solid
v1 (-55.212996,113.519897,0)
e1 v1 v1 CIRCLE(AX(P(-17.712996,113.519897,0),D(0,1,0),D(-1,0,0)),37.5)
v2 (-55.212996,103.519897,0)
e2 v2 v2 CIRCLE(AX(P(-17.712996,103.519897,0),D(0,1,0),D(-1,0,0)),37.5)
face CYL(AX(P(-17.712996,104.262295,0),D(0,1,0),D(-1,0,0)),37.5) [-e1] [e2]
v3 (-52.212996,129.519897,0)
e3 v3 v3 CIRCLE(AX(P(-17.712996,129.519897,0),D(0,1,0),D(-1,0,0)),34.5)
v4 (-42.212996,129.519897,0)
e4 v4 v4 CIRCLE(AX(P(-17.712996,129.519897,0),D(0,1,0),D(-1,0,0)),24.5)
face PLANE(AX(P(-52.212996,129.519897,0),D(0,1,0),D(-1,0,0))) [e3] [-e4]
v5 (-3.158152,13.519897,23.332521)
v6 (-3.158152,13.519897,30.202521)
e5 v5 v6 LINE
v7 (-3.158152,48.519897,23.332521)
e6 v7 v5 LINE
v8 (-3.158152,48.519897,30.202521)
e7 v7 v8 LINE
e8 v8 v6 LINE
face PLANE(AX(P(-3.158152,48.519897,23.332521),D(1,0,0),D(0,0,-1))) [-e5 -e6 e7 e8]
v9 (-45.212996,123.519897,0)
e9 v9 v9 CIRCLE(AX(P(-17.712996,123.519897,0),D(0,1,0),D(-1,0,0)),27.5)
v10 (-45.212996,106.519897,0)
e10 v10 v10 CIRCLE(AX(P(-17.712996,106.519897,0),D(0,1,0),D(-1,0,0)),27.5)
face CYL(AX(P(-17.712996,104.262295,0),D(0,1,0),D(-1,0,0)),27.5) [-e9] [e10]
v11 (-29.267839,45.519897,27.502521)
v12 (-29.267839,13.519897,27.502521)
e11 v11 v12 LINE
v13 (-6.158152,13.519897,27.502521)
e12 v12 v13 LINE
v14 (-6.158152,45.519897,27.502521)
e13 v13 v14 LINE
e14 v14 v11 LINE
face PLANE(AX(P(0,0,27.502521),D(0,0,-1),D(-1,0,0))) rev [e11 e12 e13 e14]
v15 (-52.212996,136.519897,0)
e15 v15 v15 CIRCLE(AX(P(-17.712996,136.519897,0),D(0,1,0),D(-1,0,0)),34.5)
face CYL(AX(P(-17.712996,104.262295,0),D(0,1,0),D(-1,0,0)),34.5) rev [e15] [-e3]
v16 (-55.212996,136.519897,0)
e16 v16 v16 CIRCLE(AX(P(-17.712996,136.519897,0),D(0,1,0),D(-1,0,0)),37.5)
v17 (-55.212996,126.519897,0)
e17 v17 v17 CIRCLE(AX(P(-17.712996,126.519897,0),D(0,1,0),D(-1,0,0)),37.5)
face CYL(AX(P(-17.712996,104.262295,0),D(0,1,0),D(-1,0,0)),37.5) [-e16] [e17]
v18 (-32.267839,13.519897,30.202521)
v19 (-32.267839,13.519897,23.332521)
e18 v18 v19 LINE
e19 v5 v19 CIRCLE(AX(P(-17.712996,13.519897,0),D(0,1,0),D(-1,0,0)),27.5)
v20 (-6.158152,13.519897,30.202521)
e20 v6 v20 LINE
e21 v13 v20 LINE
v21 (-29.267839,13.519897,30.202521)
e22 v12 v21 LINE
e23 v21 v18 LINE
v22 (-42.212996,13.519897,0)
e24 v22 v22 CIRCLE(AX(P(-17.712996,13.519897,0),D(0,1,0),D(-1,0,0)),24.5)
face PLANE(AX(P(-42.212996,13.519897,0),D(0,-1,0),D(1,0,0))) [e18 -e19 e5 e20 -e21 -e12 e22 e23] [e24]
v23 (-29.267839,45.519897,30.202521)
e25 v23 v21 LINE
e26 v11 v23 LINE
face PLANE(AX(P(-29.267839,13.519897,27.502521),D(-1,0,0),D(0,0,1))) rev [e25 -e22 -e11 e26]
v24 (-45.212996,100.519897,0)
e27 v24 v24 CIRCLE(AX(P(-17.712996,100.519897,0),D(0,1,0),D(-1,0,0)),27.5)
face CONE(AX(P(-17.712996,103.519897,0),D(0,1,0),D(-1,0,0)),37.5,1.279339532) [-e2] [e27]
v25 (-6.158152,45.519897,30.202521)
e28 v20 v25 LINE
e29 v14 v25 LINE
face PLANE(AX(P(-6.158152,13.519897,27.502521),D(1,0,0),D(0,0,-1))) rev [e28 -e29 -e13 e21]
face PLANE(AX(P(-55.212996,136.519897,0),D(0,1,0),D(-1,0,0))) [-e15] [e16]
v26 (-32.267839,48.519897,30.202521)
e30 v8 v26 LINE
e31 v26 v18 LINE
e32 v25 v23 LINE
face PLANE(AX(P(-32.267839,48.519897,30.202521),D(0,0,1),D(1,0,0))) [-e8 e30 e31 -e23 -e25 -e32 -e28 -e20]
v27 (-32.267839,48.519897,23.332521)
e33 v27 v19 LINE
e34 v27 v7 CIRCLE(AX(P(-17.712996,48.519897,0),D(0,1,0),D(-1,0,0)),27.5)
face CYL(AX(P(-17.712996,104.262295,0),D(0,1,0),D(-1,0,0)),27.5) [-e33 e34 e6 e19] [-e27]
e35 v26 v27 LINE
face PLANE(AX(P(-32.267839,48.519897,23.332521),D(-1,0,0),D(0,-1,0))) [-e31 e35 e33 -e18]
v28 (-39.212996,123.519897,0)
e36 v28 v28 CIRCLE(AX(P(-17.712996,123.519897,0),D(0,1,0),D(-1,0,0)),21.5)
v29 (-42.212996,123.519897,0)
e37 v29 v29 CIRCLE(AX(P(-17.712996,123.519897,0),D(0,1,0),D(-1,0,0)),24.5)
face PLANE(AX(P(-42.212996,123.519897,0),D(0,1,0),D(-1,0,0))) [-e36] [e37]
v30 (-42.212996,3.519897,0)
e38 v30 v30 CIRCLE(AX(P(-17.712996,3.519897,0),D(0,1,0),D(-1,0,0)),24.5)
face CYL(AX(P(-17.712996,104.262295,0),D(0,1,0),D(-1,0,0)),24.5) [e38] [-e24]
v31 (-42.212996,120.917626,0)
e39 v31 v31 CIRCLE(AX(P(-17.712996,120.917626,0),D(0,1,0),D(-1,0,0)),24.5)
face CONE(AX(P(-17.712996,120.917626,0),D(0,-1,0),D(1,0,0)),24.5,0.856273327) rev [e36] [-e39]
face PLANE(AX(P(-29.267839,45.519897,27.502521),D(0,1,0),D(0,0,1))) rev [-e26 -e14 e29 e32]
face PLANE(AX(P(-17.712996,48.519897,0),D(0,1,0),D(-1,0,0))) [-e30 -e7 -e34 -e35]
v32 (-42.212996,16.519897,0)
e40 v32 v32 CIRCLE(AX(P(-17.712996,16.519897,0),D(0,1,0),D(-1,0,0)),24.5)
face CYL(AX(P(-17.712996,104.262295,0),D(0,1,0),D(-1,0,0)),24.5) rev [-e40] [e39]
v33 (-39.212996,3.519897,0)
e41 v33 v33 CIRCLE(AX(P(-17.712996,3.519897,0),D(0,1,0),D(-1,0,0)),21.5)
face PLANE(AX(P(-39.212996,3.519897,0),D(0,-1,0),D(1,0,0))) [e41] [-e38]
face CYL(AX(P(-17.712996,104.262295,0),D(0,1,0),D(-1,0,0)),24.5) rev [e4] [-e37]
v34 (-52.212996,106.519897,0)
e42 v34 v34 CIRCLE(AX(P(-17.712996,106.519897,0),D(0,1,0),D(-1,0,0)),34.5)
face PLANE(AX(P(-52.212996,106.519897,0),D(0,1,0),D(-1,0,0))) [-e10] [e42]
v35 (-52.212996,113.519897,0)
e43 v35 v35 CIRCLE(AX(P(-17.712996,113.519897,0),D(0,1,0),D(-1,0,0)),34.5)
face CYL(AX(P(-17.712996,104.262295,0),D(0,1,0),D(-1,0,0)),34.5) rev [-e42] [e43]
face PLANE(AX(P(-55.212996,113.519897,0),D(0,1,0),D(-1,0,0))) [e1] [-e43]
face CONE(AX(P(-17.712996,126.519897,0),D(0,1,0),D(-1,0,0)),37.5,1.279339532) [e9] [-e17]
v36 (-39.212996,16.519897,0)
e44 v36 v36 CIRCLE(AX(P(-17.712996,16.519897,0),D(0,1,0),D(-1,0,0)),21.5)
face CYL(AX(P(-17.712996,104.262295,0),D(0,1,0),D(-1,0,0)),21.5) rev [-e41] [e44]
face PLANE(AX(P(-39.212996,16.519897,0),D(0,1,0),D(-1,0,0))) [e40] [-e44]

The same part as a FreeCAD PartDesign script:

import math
import FreeCAD as App
import Part
import Sketcher
from FreeCAD import Vector

doc = App.newDocument("Part")
params = doc.addObject("Spreadsheet::Sheet", "Params")
for row, (alias, value) in enumerate([
    ("sketch1_width", "3 mm"),
    ("sketch1_width2", "10 mm"),
    ("sketch1_height", "13 mm"),
    ("sketch1_height2", "6 mm"),
    ("sketch1_height3", "17 mm"),
    ("revolution_angle", "360 deg"),
    ("sketch2_radius", "27.5 mm"),
    ("sketch2_height", "6.87 mm"),
    ("pad1_length", "35 mm"),
    ("sketch3_height", "32 mm"),
    ("pocket1_length", "2.7 mm"),
], start=1):
    params.set(f"A{row}", alias)
    params.set(f"B{row}", "=" + value)
    params.setAlias(f"B{row}", alias)

body = doc.addObject("PartDesign::Body", "Body")

sketch1 = body.newObject("Sketcher::SketchObject", "Sketch")
sketch1.AttachmentSupport = (doc.getObject("XY_Plane"), [""])
sketch1.MapMode = "FlatFace"
sketch1.addGeometry([
    Part.LineSegment(Vector(-39.2, 3.5, 0), Vector(-39.2, 16.5, 0)),
    Part.LineSegment(Vector(-39.2, 16.5, 0), Vector(-42.2, 16.5, 0)),
    Part.LineSegment(Vector(-42.2, 16.5, 0), Vector(-42.2, 120.9, 0)),
    Part.LineSegment(Vector(-42.2, 120.9, 0), Vector(-39.2, 123.5, 0)),
    Part.LineSegment(Vector(-39.2, 123.5, 0), Vector(-42.2, 123.5, 0)),
    Part.LineSegment(Vector(-42.2, 123.5, 0), Vector(-42.2, 129.5, 0)),
    Part.LineSegment(Vector(-42.2, 129.5, 0), Vector(-52.2, 129.5, 0)),
    Part.LineSegment(Vector(-52.2, 129.5, 0), Vector(-52.2, 136.5, 0)),
    Part.LineSegment(Vector(-52.2, 136.5, 0), Vector(-55.2, 136.5, 0)),
    Part.LineSegment(Vector(-55.2, 136.5, 0), Vector(-55.2, 126.5, 0)),
    Part.LineSegment(Vector(-55.2, 126.5, 0), Vector(-45.2, 123.5, 0)),
    Part.LineSegment(Vector(-45.2, 123.5, 0), Vector(-45.2, 106.5, 0)),
    Part.LineSegment(Vector(-45.2, 106.5, 0), Vector(-52.2, 106.5, 0)),
    Part.LineSegment(Vector(-52.2, 106.5, 0), Vector(-52.2, 113.5, 0)),
    Part.LineSegment(Vector(-52.2, 113.5, 0), Vector(-55.2, 113.5, 0)),
    Part.LineSegment(Vector(-55.2, 113.5, 0), Vector(-55.2, 103.5, 0)),
    Part.LineSegment(Vector(-55.2, 103.5, 0), Vector(-45.2, 100.5, 0)),
    Part.LineSegment(Vector(-45.2, 100.5, 0), Vector(-45.2, 13.5, 0)),
    Part.LineSegment(Vector(-45.2, 13.5, 0), Vector(-42.2, 13.5, 0)),
    Part.LineSegment(Vector(-42.2, 13.5, 0), Vector(-42.2, 3.5, 0)),
    Part.LineSegment(Vector(-42.2, 3.5, 0), Vector(-39.2, 3.5, 0)),
], False)
sketch1.addGeometry(Part.LineSegment(Vector(-17.7, 136.5, 0), Vector(-17.7, 3.5, 0)), True)
sketch1.addConstraint([
    Sketcher.Constraint("Coincident", 0, 2, 1, 1),
    Sketcher.Constraint("Coincident", 1, 2, 2, 1),
    Sketcher.Constraint("Coincident", 2, 2, 3, 1),
    Sketcher.Constraint("Coincident", 3, 2, 4, 1),
    Sketcher.Constraint("Coincident", 4, 2, 5, 1),
    Sketcher.Constraint("Coincident", 5, 2, 6, 1),
    Sketcher.Constraint("Coincident", 6, 2, 7, 1),
    Sketcher.Constraint("Coincident", 7, 2, 8, 1),
    Sketcher.Constraint("Coincident", 8, 2, 9, 1),
    Sketcher.Constraint("Coincident", 9, 2, 10, 1),
    Sketcher.Constraint("Coincident", 10, 2, 11, 1),
    Sketcher.Constraint("Coincident", 11, 2, 12, 1),
    Sketcher.Constraint("Coincident", 12, 2, 13, 1),
    Sketcher.Constraint("Coincident", 13, 2, 14, 1),
    Sketcher.Constraint("Coincident", 14, 2, 15, 1),
    Sketcher.Constraint("Coincident", 15, 2, 16, 1),
    Sketcher.Constraint("Coincident", 16, 2, 17, 1),
    Sketcher.Constraint("Coincident", 17, 2, 18, 1),
    Sketcher.Constraint("Coincident", 18, 2, 19, 1),
    Sketcher.Constraint("Coincident", 19, 2, 20, 1),
    Sketcher.Constraint("Coincident", 20, 2, 0, 1),
    Sketcher.Constraint("Vertical", 0),
    Sketcher.Constraint("Horizontal", 1),
    Sketcher.Constraint("Vertical", 2),
    Sketcher.Constraint("Horizontal", 4),
    Sketcher.Constraint("Vertical", 5),
    Sketcher.Constraint("Horizontal", 6),
    Sketcher.Constraint("Vertical", 7),
    Sketcher.Constraint("Horizontal", 8),
    Sketcher.Constraint("Vertical", 9),
    Sketcher.Constraint("Vertical", 11),
    Sketcher.Constraint("Horizontal", 12),
    Sketcher.Constraint("Vertical", 13),
    Sketcher.Constraint("Horizontal", 14),
    Sketcher.Constraint("Vertical", 15),
    Sketcher.Constraint("Vertical", 17),
    Sketcher.Constraint("Horizontal", 18),
    Sketcher.Constraint("Vertical", 19),
    Sketcher.Constraint("Horizontal", 20),
    Sketcher.Constraint("Vertical", 21),
    Sketcher.Constraint("Parallel", 10, 16),
    Sketcher.Constraint("Horizontal", 4, 2, 10, 2),
    Sketcher.Constraint("Horizontal", 8, 2, 21, 1),
    Sketcher.Constraint("Horizontal", 20, 2, 21, 2),
    Sketcher.Constraint("Vertical", 0, 2, 3, 2),
    Sketcher.Constraint("Vertical", 2, 2, 4, 2),
    Sketcher.Constraint("Vertical", 7, 2, 12, 2),
    Sketcher.Constraint("Vertical", 9, 2, 14, 2),
    Sketcher.Constraint("Vertical", 11, 2, 16, 2),
    Sketcher.Constraint("Vertical", 5, 2, 18, 2),
    Sketcher.Constraint("Equal", 4, 8),
    Sketcher.Constraint("Equal", 14, 18),
    Sketcher.Constraint("Equal", 12, 7),
    Sketcher.Constraint("Equal", 6, 9),
    Sketcher.Constraint("Equal", 7, 13),
    Sketcher.Constraint("Equal", 9, 15),
    Sketcher.Constraint("Equal", 15, 19),
    Sketcher.Constraint("DistanceX", 1, 2, 1, 1, 3.0),
    Sketcher.Constraint("DistanceX", 6, 2, 6, 1, 10.0),
    Sketcher.Constraint("DistanceY", 0, 1, 0, 2, 13.0),
    Sketcher.Constraint("DistanceY", 5, 1, 5, 2, 6.0),
    Sketcher.Constraint("DistanceY", 11, 2, 11, 1, 17.0),
    Sketcher.Constraint("DistanceY", 17, 2, 17, 1, 87.0),
    Sketcher.Constraint("DistanceX", 3, 2, 21, 1, 21.5),
    Sketcher.Constraint("DistanceY", 2, 1, 2, 2, 104.397728),
    Sketcher.Constraint("DistanceX", 0, 2, -1, 1, 39.212996),
    Sketcher.Constraint("DistanceY", -1, 1, 0, 2, 16.519897),
])
sketch1.setExpression("Constraints[57]", "Params.sketch1_width")
sketch1.setExpression("Constraints[58]", "Params.sketch1_width2")
sketch1.setExpression("Constraints[59]", "Params.sketch1_height")
sketch1.setExpression("Constraints[60]", "Params.sketch1_height2")
sketch1.setExpression("Constraints[61]", "Params.sketch1_height3")
revolution = body.newObject("PartDesign::Revolution", "Revolution")
revolution.Profile = sketch1
revolution.ReferenceAxis = (sketch1, ["Axis0"])
revolution.setExpression("Angle", "Params.revolution_angle")

sketch2 = body.newObject("Sketcher::SketchObject", "Sketch001")
sketch2.AttachmentSupport = (doc.getObject("XZ_Plane"), [""])
sketch2.MapMode = "FlatFace"
sketch2.AttachmentOffset = App.Placement(Vector(0, 0, -13.519897), App.Rotation())
sketch2.addGeometry([
    Part.LineSegment(Vector(-32, 30, 0), Vector(-32, 23, 0)),
    Part.ArcOfCircle(Part.Circle(Vector(-18, 0, 0), Vector(0, 0, 1), 27), math.radians(58), math.radians(122)),
    Part.LineSegment(Vector(-3, 23, 0), Vector(-3, 30, 0)),
    Part.LineSegment(Vector(-3, 30, 0), Vector(-32, 30, 0)),
], False)
sketch2.addConstraint([
    Sketcher.Constraint("Coincident", 0, 2, 1, 2),
    Sketcher.Constraint("Coincident", 1, 1, 2, 1),
    Sketcher.Constraint("Coincident", 2, 2, 3, 1),
    Sketcher.Constraint("Coincident", 3, 2, 0, 1),
    Sketcher.Constraint("Vertical", 0),
    Sketcher.Constraint("Vertical", 2),
    Sketcher.Constraint("Horizontal", 3),
    Sketcher.Constraint("PointOnObject", 1, 3, -1),
    Sketcher.Constraint("Horizontal", 0, 2, 1, 1),
    Sketcher.Constraint("Radius", 1, 27.5),
    Sketcher.Constraint("DistanceY", 0, 2, 0, 1, 6.87),
    Sketcher.Constraint("DistanceX", 3, 2, 3, 1, 29.109686),
    Sketcher.Constraint("DistanceX", 0, 2, -1, 1, 32.267839),
])
sketch2.setExpression("Constraints[9]", "Params.sketch2_radius")
sketch2.setExpression("Constraints[10]", "Params.sketch2_height")
pad1 = body.newObject("PartDesign::Pad", "Pad")
pad1.Profile = sketch2
pad1.setExpression("Length", "Params.pad1_length")
pad1.Reversed = True

sketch3 = body.newObject("Sketcher::SketchObject", "Sketch002")
sketch3.AttachmentSupport = (doc.getObject("XY_Plane"), [""])
sketch3.MapMode = "FlatFace"
sketch3.AttachmentOffset = App.Placement(Vector(0, 0, 30.202521), App.Rotation())
sketch3.addGeometry([
    Part.LineSegment(Vector(-29, 46, 0), Vector(-29, 14, 0)),
    Part.LineSegment(Vector(-29, 14, 0), Vector(-6, 14, 0)),
    Part.LineSegment(Vector(-6, 14, 0), Vector(-6, 46, 0)),
    Part.LineSegment(Vector(-6, 46, 0), Vector(-29, 46, 0)),
], False)
sketch3.addConstraint([
    Sketcher.Constraint("Coincident", 0, 2, 1, 1),
    Sketcher.Constraint("Coincident", 1, 2, 2, 1),
    Sketcher.Constraint("Coincident", 2, 2, 3, 1),
    Sketcher.Constraint("Coincident", 3, 2, 0, 1),
    Sketcher.Constraint("Vertical", 0),
    Sketcher.Constraint("Horizontal", 1),
    Sketcher.Constraint("Vertical", 2),
    Sketcher.Constraint("Horizontal", 3),
    Sketcher.Constraint("DistanceY", 0, 2, 0, 1, 32.0),
    Sketcher.Constraint("DistanceX", 1, 1, 1, 2, 23.109686),
    Sketcher.Constraint("DistanceX", 0, 2, -1, 1, 29.267839),
    Sketcher.Constraint("DistanceY", -1, 1, 0, 2, 13.519897),
])
sketch3.setExpression("Constraints[8]", "Params.sketch3_height")
pocket1 = body.newObject("PartDesign::Pocket", "Pocket")
pocket1.Profile = sketch3
pocket1.setExpression("Length", "Params.pocket1_length")

doc.recompute()
